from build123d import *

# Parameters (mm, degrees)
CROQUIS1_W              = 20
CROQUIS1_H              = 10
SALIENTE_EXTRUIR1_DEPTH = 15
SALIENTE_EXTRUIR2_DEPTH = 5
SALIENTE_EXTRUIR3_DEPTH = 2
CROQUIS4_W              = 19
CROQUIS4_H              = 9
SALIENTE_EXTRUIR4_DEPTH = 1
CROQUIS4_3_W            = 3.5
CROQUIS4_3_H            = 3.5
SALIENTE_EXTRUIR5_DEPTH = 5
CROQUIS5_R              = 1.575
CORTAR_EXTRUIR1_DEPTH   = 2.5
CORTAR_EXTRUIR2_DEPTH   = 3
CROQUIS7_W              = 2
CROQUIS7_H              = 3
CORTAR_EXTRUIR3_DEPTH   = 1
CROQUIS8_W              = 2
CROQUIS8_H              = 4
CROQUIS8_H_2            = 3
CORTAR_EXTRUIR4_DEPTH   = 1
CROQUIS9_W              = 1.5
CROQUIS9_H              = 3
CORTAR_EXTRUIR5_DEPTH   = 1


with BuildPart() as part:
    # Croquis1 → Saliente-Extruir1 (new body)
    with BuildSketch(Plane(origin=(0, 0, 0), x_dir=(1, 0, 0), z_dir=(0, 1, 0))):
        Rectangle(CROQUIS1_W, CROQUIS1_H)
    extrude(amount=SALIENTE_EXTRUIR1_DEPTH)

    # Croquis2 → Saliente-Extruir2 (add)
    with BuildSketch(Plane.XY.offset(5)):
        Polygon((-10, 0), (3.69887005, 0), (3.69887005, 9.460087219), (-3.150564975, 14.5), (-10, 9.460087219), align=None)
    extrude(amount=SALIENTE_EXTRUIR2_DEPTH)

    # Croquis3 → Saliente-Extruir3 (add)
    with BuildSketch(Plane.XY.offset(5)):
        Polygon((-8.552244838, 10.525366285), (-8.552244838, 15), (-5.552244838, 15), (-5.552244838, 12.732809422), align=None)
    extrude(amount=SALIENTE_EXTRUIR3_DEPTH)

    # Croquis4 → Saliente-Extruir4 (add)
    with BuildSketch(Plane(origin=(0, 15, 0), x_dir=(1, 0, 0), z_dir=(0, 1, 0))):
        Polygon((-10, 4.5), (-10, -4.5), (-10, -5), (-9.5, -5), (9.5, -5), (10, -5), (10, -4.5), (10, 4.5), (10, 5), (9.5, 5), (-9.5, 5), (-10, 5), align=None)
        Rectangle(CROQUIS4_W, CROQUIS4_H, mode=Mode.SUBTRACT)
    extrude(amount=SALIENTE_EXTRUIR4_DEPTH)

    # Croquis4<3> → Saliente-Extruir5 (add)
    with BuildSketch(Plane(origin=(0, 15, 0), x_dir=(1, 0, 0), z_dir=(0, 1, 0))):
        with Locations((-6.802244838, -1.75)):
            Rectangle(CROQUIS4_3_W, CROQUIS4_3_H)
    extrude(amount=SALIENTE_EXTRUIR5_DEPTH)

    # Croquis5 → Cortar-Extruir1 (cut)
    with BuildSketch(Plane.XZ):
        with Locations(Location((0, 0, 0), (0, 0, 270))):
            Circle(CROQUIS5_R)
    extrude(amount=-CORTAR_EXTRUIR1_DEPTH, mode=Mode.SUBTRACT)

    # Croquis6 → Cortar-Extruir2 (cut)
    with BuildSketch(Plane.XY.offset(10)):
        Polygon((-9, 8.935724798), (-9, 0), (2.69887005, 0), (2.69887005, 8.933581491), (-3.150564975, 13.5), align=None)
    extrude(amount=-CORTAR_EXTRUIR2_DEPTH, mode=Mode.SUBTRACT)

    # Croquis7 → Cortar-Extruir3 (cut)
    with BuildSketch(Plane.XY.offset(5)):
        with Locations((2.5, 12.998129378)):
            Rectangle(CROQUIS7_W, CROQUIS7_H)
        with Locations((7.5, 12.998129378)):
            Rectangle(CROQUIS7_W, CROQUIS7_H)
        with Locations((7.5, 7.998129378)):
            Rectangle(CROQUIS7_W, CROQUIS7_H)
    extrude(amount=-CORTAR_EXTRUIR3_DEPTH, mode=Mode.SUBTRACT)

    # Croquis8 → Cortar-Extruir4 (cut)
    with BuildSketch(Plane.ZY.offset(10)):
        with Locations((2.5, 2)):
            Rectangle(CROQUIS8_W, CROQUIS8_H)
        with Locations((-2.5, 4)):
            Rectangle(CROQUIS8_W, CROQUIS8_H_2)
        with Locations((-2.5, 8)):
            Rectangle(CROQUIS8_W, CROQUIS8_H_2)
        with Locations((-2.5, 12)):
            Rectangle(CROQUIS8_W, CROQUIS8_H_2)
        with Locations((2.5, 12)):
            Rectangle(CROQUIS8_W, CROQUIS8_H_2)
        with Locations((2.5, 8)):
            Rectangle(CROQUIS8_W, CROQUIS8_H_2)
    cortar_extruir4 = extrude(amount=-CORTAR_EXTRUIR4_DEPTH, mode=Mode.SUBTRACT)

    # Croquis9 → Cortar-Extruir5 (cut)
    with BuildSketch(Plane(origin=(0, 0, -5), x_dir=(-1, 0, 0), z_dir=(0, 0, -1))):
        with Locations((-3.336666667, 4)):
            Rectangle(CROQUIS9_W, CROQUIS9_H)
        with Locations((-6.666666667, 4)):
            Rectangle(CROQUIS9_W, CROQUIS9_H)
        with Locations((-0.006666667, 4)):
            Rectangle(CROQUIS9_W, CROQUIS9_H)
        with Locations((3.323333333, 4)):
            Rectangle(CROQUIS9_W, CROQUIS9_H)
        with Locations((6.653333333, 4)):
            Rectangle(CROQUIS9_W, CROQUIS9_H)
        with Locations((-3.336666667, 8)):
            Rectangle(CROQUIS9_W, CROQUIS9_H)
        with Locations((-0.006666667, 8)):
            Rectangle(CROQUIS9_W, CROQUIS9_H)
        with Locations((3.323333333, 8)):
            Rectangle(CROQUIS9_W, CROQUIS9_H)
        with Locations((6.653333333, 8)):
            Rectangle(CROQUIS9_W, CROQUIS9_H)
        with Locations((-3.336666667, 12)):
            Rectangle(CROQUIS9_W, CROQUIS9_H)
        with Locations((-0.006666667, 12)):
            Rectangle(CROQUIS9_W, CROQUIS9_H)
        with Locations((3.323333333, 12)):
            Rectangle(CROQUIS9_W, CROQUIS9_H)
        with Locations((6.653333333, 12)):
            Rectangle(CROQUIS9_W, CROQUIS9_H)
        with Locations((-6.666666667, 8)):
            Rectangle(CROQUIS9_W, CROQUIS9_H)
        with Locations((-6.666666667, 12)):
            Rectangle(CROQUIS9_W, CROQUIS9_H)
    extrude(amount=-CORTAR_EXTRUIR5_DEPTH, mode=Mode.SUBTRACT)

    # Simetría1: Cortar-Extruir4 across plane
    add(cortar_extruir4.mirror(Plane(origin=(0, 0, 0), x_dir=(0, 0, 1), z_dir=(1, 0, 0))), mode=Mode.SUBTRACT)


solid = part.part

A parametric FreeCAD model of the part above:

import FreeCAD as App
import Part
import Sketcher
from FreeCAD import Vector


def add_polygon(sketch, points):
    """Adds a closed chain of lines whose ends are joined by coincident constraints."""
    first, n = sketch.GeometryCount, len(points)
    for a, b in zip(points, points[1:] + points[:1]):
        sketch.addGeometry(Part.LineSegment(App.Vector(*a, 0), App.Vector(*b, 0)), False)
    for i in range(n):
        sketch.addConstraint(Sketcher.Constraint("Coincident", first + i, 2, first + (i + 1) % n, 1))

doc = App.newDocument("Part")
body = doc.addObject("PartDesign::Body", "Body")

sketch1 = doc.addObject("Sketcher::SketchObject", "Sketch")
body.addObject(sketch1)
sketch1.AttachmentSupport = (doc.XZ_Plane, [""])
sketch1.MapMode = "FlatFace"
add_polygon(sketch1, [(-10, -5), (-10, 5), (10, 5), (10, -5)])
sketch1.addConstraint([
    Sketcher.Constraint("Vertical", 0),
    Sketcher.Constraint("Horizontal", 1),
    Sketcher.Constraint("Vertical", 2),
    Sketcher.Constraint("Horizontal", 3),
    Sketcher.Constraint("Symmetric", 0, 2, 2, 2, -1, 1),
    Sketcher.Constraint("DistanceX", 1, 1, 1, 2, 20.0),
    Sketcher.Constraint("DistanceY", 0, 1, 0, 2, 10.0),
])
pad1 = doc.addObject("PartDesign::Pad", "Pad")
body.addObject(pad1)
pad1.Profile = sketch1
pad1.Length = 15
pad1.Reversed = True

sketch2 = doc.addObject("Sketcher::SketchObject", "Sketch001")
body.addObject(sketch2)
sketch2.AttachmentSupport = (doc.XY_Plane, [""])
sketch2.MapMode = "FlatFace"
sketch2.AttachmentOffset = App.Placement(Vector(0, 0, 5), App.Rotation())
add_polygon(sketch2, [(-10, 0), (4, 0), (4, 9), (-3, 14), (-10, 9)])
sketch2.addConstraint([
    Sketcher.Constraint("Horizontal", 0),
    Sketcher.Constraint("Vertical", 1),
    Sketcher.Constraint("Vertical", 4),
    Sketcher.Constraint("PointOnObject", 0, 2, -1),
    Sketcher.Constraint("Horizontal", 1, 2, 3, 2),
    Sketcher.Constraint("Equal", 2, 3),
    Sketcher.Constraint("DistanceX", 3, 2, -1, 1, 10.0),
    Sketcher.Constraint("DistanceY", -1, 1, 2, 2, 14.5),
    Sketcher.Constraint("DistanceX", 0, 1, 0, 2, 13.69887),
    Sketcher.Constraint("Distance", 2, 8.503851),
])
pad2 = doc.addObject("PartDesign::Pad", "Pad001")
body.addObject(pad2)
pad2.Profile = sketch2
pad2.Length = 5

sketch3 = doc.addObject("Sketcher::SketchObject", "Sketch002")
body.addObject(sketch3)
sketch3.AttachmentSupport = (doc.XY_Plane, [""])
sketch3.MapMode = "FlatFace"
sketch3.AttachmentOffset = App.Placement(Vector(0, 0, 5), App.Rotation())
add_polygon(sketch3, [(-8.6, 15), (-8.6, 10.5), (-5.6, 12.7), (-5.6, 15)])
sketch3.addConstraint([
    Sketcher.Constraint("Vertical", 0),
    Sketcher.Constraint("Vertical", 2),
    Sketcher.Constraint("Horizontal", 3),
    Sketcher.Constraint("DistanceX", 3, 2, 3, 1, 3.0),
    Sketcher.Constraint("DistanceY", -1, 1, 2, 2, 15.0),
    Sketcher.Constraint("DistanceY", 2, 1, 2, 2, 2.267191),
    Sketcher.Constraint("Distance", 1, 3.724621),
    Sketcher.Constraint("DistanceX", 0, 2, -1, 1, 8.552245),
])
pad3 = doc.addObject("PartDesign::Pad", "Pad002")
body.addObject(pad3)
pad3.Profile = sketch3
pad3.Length = 2

sketch4 = doc.addObject("Sketcher::SketchObject", "Sketch003")
body.addObject(sketch4)
sketch4.AttachmentSupport = (doc.XZ_Plane, [""])
sketch4.MapMode = "FlatFace"
sketch4.AttachmentOffset = App.Placement(Vector(0, 0, -15), App.Rotation())
add_polygon(sketch4, [(-10, 5), (10, 5), (10, -5), (-10, -5)])
add_polygon(sketch4, [(10, 4), (-10, 4), (-10, -4), (10, -4)])
sketch4.addConstraint([
    Sketcher.Constraint("Horizontal", 0),
    Sketcher.Constraint("Vertical", 1),
    Sketcher.Constraint("Horizontal", 2),
    Sketcher.Constraint("Vertical", 3),
    Sketcher.Constraint("Horizontal", 4),
    Sketcher.Constraint("Vertical", 5),
    Sketcher.Constraint("Horizontal", 6),
    Sketcher.Constraint("Vertical", 7),
    Sketcher.Constraint("Symmetric", 0, 2, 2, 2, -1, 1),
    Sketcher.Constraint("Symmetric", 4, 2, 6, 2, -1, 1),
    Sketcher.Constraint("DistanceX", 0, 1, 0, 2, 20.0),
    Sketcher.Constraint("DistanceX", 4, 2, 4, 1, 19.0),
    Sketcher.Constraint("DistanceY", 1, 2, 1, 1, 10.0),
    Sketcher.Constraint("DistanceY", 5, 2, 5, 1, 9.0),
])
pad4 = doc.addObject("PartDesign::Pad", "Pad003")
body.addObject(pad4)
pad4.Profile = sketch4
pad4.Length = 1
pad4.Reversed = True

sketch5 = doc.addObject("Sketcher::SketchObject", "Sketch004")
body.addObject(sketch5)
sketch5.AttachmentSupport = (doc.XZ_Plane, [""])
sketch5.MapMode = "FlatFace"
sketch5.AttachmentOffset = App.Placement(Vector(0, 0, -15), App.Rotation())
add_polygon(sketch5, [(-8.6, 0), (-8.6, 3.5), (-5.1, 3.5), (-5.1, 0)])
sketch5.addConstraint([
    Sketcher.Constraint("Vertical", 0),
    Sketcher.Constraint("Horizontal", 1),
    Sketcher.Constraint("Vertical", 2),
    Sketcher.Constraint("Horizontal", 3),
    Sketcher.Constraint("PointOnObject", 2, 2, -1),
    Sketcher.Constraint("Equal", 3, 0),
    Sketcher.Constraint("DistanceX", 1, 1, 1, 2, 3.5),
    Sketcher.Constraint("DistanceX", 0, 2, -1, 1, 8.552245),
])
pad5 = doc.addObject("PartDesign::Pad", "Pad004")
body.addObject(pad5)
pad5.Profile = sketch5
pad5.Length = 5
pad5.Reversed = True

sketch6 = doc.addObject("Sketcher::SketchObject", "Sketch005")
body.addObject(sketch6)
sketch6.AttachmentSupport = (doc.XZ_Plane, [""])
sketch6.MapMode = "FlatFace"
sketch6.addGeometry(Part.Circle(Vector(0, 0, 0), Vector(0, 0, 1), 1.6), False)
sketch6.addConstraint([
    Sketcher.Constraint("Coincident", 0, 3, -1, 1),
    Sketcher.Constraint("Diameter", 0, 3.15),
])
pocket1 = doc.addObject("PartDesign::Pocket", "Pocket")
body.addObject(pocket1)
pocket1.Profile = sketch6
pocket1.Length = 2.5

sketch7 = doc.addObject("Sketcher::SketchObject", "Sketch006")
body.addObject(sketch7)
sketch7.AttachmentSupport = (doc.XY_Plane, [""])
sketch7.MapMode = "FlatFace"
sketch7.AttachmentOffset = App.Placement(Vector(0, 0, 10), App.Rotation())
add_polygon(sketch7, [(-9, 9), (-9, 0), (3, 0), (3, 9), (-3, 14)])
sketch7.addConstraint([
    Sketcher.Constraint("Vertical", 0),
    Sketcher.Constraint("Horizontal", 1),
    Sketcher.Constraint("Vertical", 2),
    Sketcher.Constraint("PointOnObject", 0, 2, -1),
    Sketcher.Constraint("DistanceX", 0, 2, -1, 1, 9.0),
    Sketcher.Constraint("DistanceY", -1, 1, 3, 2, 13.5),
    Sketcher.Constraint("DistanceX", 1, 1, 1, 2, 11.69887),
    Sketcher.Constraint("DistanceY", 2, 1, 2, 2, 8.933581),
    Sketcher.Constraint("DistanceY", 0, 2, 0, 1, 8.935725),
    Sketcher.Constraint("Distance", 3, 7.420786),
])
pocket2 = doc.addObject("PartDesign::Pocket", "Pocket001")
body.addObject(pocket2)
pocket2.Profile = sketch7
pocket2.Length = 3

sketch8 = doc.addObject("Sketcher::SketchObject", "Sketch007")
body.addObject(sketch8)
sketch8.AttachmentSupport = (doc.XY_Plane, [""])
sketch8.MapMode = "FlatFace"
sketch8.AttachmentOffset = App.Placement(Vector(0, 0, 5), App.Rotation())
add_polygon(sketch8, [(1.5, 14.5), (1.5, 11.5), (3.5, 11.5), (3.5, 14.5)])
add_polygon(sketch8, [(6.5, 14.5), (6.5, 11.5), (8.5, 11.5), (8.5, 14.5)])
add_polygon(sketch8, [(6.5, 9.5), (6.5, 6.5), (8.5, 6.5), (8.5, 9.5)])
sketch8.addConstraint([
    Sketcher.Constraint("Vertical", 0),
    Sketcher.Constraint("Horizontal", 1),
    Sketcher.Constraint("Vertical", 2),
    Sketcher.Constraint("Horizontal", 3),
    Sketcher.Constraint("Vertical", 4),
    Sketcher.Constraint("Horizontal", 5),
    Sketcher.Constraint("Vertical", 6),
    Sketcher.Constraint("Horizontal", 7),
    Sketcher.Constraint("Vertical", 8),
    Sketcher.Constraint("Horizontal", 9),
    Sketcher.Constraint("Vertical", 10),
    Sketcher.Constraint("Horizontal", 11),
    Sketcher.Constraint("Horizontal", 1, 2, 4, 2),
    Sketcher.Constraint("Horizontal", 3, 2, 6, 2),
    Sketcher.Constraint("Vertical", 7, 2, 8, 2),
    Sketcher.Constraint("Vertical", 6, 2, 9, 2),
    Sketcher.Constraint("Equal", 3, 5),
    Sketcher.Constraint("Equal", 6, 8),
    Sketcher.Constraint("DistanceX", 1, 1, 1, 2, 2.0),
    Sketcher.Constraint("DistanceY", 0, 2, 0, 1, 3.0),
    Sketcher.Constraint("DistanceX", 1, 2, 4, 2, 3.0),
    Sketcher.Constraint("DistanceY", 8, 2, 4, 2, 5.0),
    Sketcher.Constraint("DistanceX", -1, 1, 0, 2, 1.5),
    Sketcher.Constraint("DistanceY", -1, 1, 0, 2, 11.498129),
])
pocket3 = doc.addObject("PartDesign::Pocket", "Pocket002")
body.addObject(pocket3)
pocket3.Profile = sketch8
pocket3.Length = 1

sketch9 = doc.addObject("Sketcher::SketchObject", "Sketch008")
body.addObject(sketch9)
sketch9.AttachmentSupport = (doc.YZ_Plane, [""])
sketch9.MapMode = "FlatFace"
sketch9.AttachmentOffset = App.Placement(Vector(0, 0, -10), App.Rotation())
add_polygon(sketch9, [(4, 1.5), (0, 1.5), (0, 3.5), (4, 3.5)])
add_polygon(sketch9, [(5.5, -3.5), (2.5, -3.5), (2.5, -1.5), (5.5, -1.5)])
add_polygon(sketch9, [(9.5, -3.5), (6.5, -3.5), (6.5, -1.5), (9.5, -1.5)])
add_polygon(sketch9, [(13.5, -3.5), (10.5, -3.5), (10.5, -1.5), (13.5, -1.5)])
add_polygon(sketch9, [(13.5, 1.5), (10.5, 1.5), (10.5, 3.5), (13.5, 3.5)])
add_polygon(sketch9, [(9.5, 1.5), (6.5, 1.5), (6.5, 3.5), (9.5, 3.5)])
sketch9.addConstraint([
    Sketcher.Constraint("Horizontal", 0),
    Sketcher.Constraint("Vertical", 1),
    Sketcher.Constraint("Horizontal", 2),
    Sketcher.Constraint("Vertical", 3),
    Sketcher.Constraint("Horizontal", 4),
    Sketcher.Constraint("Vertical", 5),
    Sketcher.Constraint("Horizontal", 6),
    Sketcher.Constraint("Vertical", 7),
    Sketcher.Constraint("Horizontal", 8),
    Sketcher.Constraint("Vertical", 9),
    Sketcher.Constraint("Horizontal", 10),
    Sketcher.Constraint("Vertical", 11),
    Sketcher.Constraint("Horizontal", 12),
    Sketcher.Constraint("Vertical", 13),
    Sketcher.Constraint("Horizontal", 14),
    Sketcher.Constraint("Vertical", 15),
    Sketcher.Constraint("Horizontal", 16),
    Sketcher.Constraint("Vertical", 17),
    Sketcher.Constraint("Horizontal", 18),
    Sketcher.Constraint("Vertical", 19),
    Sketcher.Constraint("Horizontal", 20),
    Sketcher.Constraint("Vertical", 21),
    Sketcher.Constraint("Horizontal", 22),
    Sketcher.Constraint("Vertical", 23),
    Sketcher.Constraint("Symmetric", 13, 2, 16, 2, -1),
    Sketcher.Constraint("Symmetric", 15, 2, 18, 2, -1),
    Sketcher.Constraint("Symmetric", 9, 2, 20, 2, -1),
    Sketcher.Constraint("Symmetric", 11, 2, 22, 2, -1),
    Sketcher.Constraint("PointOnObject", 0, 2, -2),
    Sketcher.Constraint("Horizontal", 7, 2, 8, 2),
    Sketcher.Constraint("Horizontal", 6, 2, 9, 2),
    Sketcher.Constraint("Horizontal", 11, 2, 12, 2),
    Sketcher.Constraint("Horizontal", 10, 2, 13, 2),
    Sketcher.Constraint("Horizontal", 3, 2, 16, 2),
    Sketcher.Constraint("Horizontal", 2, 2, 17, 2),
    Sketcher.Constraint("Equal", 6, 8),
    Sketcher.Constraint("Equal", 10, 12),
    Sketcher.Constraint("DistanceX", 0, 2, 0, 1, 4.0),
    Sketcher.Constraint("DistanceX", 4, 2, 4, 1, 3.0),
    Sketcher.Constraint("DistanceY", 1, 1, 1, 2, 2.0),
    Sketcher.Constraint("DistanceY", 4, 2, 3, 2, 5.0),
    Sketcher.Constraint("DistanceX", 7, 2, 8, 2, 1.0),
    Sketcher.Constraint("DistanceX", 11, 2, 12, 2, 1.0),
    Sketcher.Constraint("DistanceX", -1, 1, 4, 2, 2.5),
])
pocket4 = doc.addObject("PartDesign::Pocket", "Pocket003")
body.addObject(pocket4)
pocket4.Profile = sketch9
pocket4.Length = 1
pocket4.Reversed = True

sketch10 = doc.addObject("Sketcher::SketchObject", "Sketch009")
body.addObject(sketch10)
sketch10.AttachmentSupport = (doc.XY_Plane, [""])
sketch10.MapMode = "FlatFace"
sketch10.AttachmentOffset = App.Placement(Vector(0, 0, -5), App.Rotation())
add_polygon(sketch10, [(4.1, 5.5), (4.1, 2.5), (2.6, 2.5), (2.6, 5.5)])
add_polygon(sketch10, [(7.4, 5.5), (7.4, 2.5), (5.9, 2.5), (5.9, 5.5)])
add_polygon(sketch10, [(0.8, 5.5), (0.8, 2.5), (-0.7, 2.5), (-0.7, 5.5)])
add_polygon(sketch10, [(-2.6, 5.5), (-2.6, 2.5), (-4.1, 2.5), (-4.1, 5.5)])
add_polygon(sketch10, [(-5.9, 5.5), (-5.9, 2.5), (-7.4, 2.5), (-7.4, 5.5)])
add_polygon(sketch10, [(4.1, 9.5), (4.1, 6.5), (2.6, 6.5), (2.6, 9.5)])
add_polygon(sketch10, [(0.8, 9.5), (0.8, 6.5), (-0.7, 6.5), (-0.7, 9.5)])
add_polygon(sketch10, [(-2.6, 9.5), (-2.6, 6.5), (-4.1, 6.5), (-4.1, 9.5)])
add_polygon(sketch10, [(-5.9, 9.5), (-5.9, 6.5), (-7.4, 6.5), (-7.4, 9.5)])
add_polygon(sketch10, [(4.1, 13.5), (4.1, 10.5), (2.6, 10.5), (2.6, 13.5)])
add_polygon(sketch10, [(0.8, 13.5), (0.8, 10.5), (-0.7, 10.5), (-0.7, 13.5)])
add_polygon(sketch10, [(-2.6, 13.5), (-2.6, 10.5), (-4.1, 10.5), (-4.1, 13.5)])
add_polygon(sketch10, [(-5.9, 13.5), (-5.9, 10.5), (-7.4, 10.5), (-7.4, 13.5)])
add_polygon(sketch10, [(7.4, 9.5), (7.4, 6.5), (5.9, 6.5), (5.9, 9.5)])
add_polygon(sketch10, [(7.4, 13.5), (7.4, 10.5), (5.9, 10.5), (5.9, 13.5)])
sketch10.addConstraint([
    Sketcher.Constraint("Vertical", 0),
    Sketcher.Constraint("Horizontal", 1),
    Sketcher.Constraint("Vertical", 2),
    Sketcher.Constraint("Horizontal", 3),
    Sketcher.Constraint("Vertical", 4),
    Sketcher.Constraint("Horizontal", 5),
    Sketcher.Constraint("Vertical", 6),
    Sketcher.Constraint("Horizontal", 7),
    Sketcher.Constraint("Vertical", 8),
    Sketcher.Constraint("Horizontal", 9),
    Sketcher.Constraint("Vertical", 10),
    Sketcher.Constraint("Horizontal", 11),
    Sketcher.Constraint("Vertical", 12),
    Sketcher.Constraint("Horizontal", 13),
    Sketcher.Constraint("Vertical", 14),
    Sketcher.Constraint("Horizontal", 15),
    Sketcher.Constraint("Vertical", 16),
    Sketcher.Constraint("Horizontal", 17),
    Sketcher.Constraint("Vertical", 18),
    Sketcher.Constraint("Horizontal", 19),
    Sketcher.Constraint("Vertical", 20),
    Sketcher.Constraint("Horizontal", 21),
    Sketcher.Constraint("Vertical", 22),
    Sketcher.Constraint("Horizontal", 23),
    Sketcher.Constraint("Vertical", 24),
    Sketcher.Constraint("Horizontal", 25),
    Sketcher.Constraint("Vertical", 26),
    Sketcher.Constraint("Horizontal", 27),
    Sketcher.Constraint("Vertical", 28),
    Sketcher.Constraint("Horizontal", 29),
    Sketcher.Constraint("Vertical", 30),
    Sketcher.Constraint("Horizontal", 31),
    Sketcher.Constraint("Vertical", 32),
    Sketcher.Constraint("Horizontal", 33),
    Sketcher.Constraint("Vertical", 34),
    Sketcher.Constraint("Horizontal", 35),
    Sketcher.Constraint("Vertical", 36),
    Sketcher.Constraint("Horizontal", 37),
    Sketcher.Constraint("Vertical", 38),
    Sketcher.Constraint("Horizontal", 39),
    Sketcher.Constraint("Vertical", 40),
    Sketcher.Constraint("Horizontal", 41),
    Sketcher.Constraint("Vertical", 42),
    Sketcher.Constraint("Horizontal", 43),
    Sketcher.Constraint("Vertical", 44),
    Sketcher.Constraint("Horizontal", 45),
    Sketcher.Constraint("Vertical", 46),
    Sketcher.Constraint("Horizontal", 47),
    Sketcher.Constraint("Vertical", 48),
    Sketcher.Constraint("Horizontal", 49),
    Sketcher.Constraint("Vertical", 50),
    Sketcher.Constraint("Horizontal", 51),
    Sketcher.Constraint("Vertical", 52),
    Sketcher.Constraint("Horizontal", 53),
    Sketcher.Constraint("Vertical", 54),
    Sketcher.Constraint("Horizontal", 55),
    Sketcher.Constraint("Vertical", 56),
    Sketcher.Constraint("Horizontal", 57),
    Sketcher.Constraint("Vertical", 58),
    Sketcher.Constraint("Horizontal", 59),
    Sketcher.Constraint("Horizontal", 1, 2, 4, 2),
    Sketcher.Constraint("Horizontal", 3, 2, 6, 2),
    Sketcher.Constraint("Horizontal", 5, 2, 8, 2),
    Sketcher.Constraint("Horizontal", 7, 2, 10, 2),
    Sketcher.Constraint("Horizontal", 9, 2, 12, 2),
    Sketcher.Constraint("Horizontal", 11, 2, 14, 2),
    Sketcher.Constraint("Horizontal", 13, 2, 16, 2),
    Sketcher.Constraint("Horizontal", 15, 2, 18, 2),
    Sketcher.Constraint("Horizontal", 21, 2, 24, 2),
    Sketcher.Constraint("Horizontal", 23, 2, 26, 2),
    Sketcher.Constraint("Horizontal", 25, 2, 28, 2),
    Sketcher.Constraint("Horizontal", 27, 2, 30, 2),
    Sketcher.Constraint("Horizontal", 29, 2, 32, 2),
    Sketcher.Constraint("Horizontal", 31, 2, 34, 2),
    Sketcher.Constraint("Horizontal", 37, 2, 40, 2),
    Sketcher.Constraint("Horizontal", 39, 2, 42, 2),
    Sketcher.Constraint("Horizontal", 41, 2, 44, 2),
    Sketcher.Constraint("Horizontal", 43, 2, 46, 2),
    Sketcher.Constraint("Horizontal", 45, 2, 48, 2),
    Sketcher.Constraint("Horizontal", 47, 2, 50, 2),
    Sketcher.Constraint("Horizontal", 33, 2, 52, 2),
    Sketcher.Constraint("Horizontal", 35, 2, 54, 2),
    Sketcher.Constraint("Horizontal", 49, 2, 56, 2),
    Sketcher.Constraint("Horizontal", 51, 2, 58, 2),
    Sketcher.Constraint("Vertical", 3, 2, 20, 2),
    Sketcher.Constraint("Vertical", 2, 2, 21, 2),
    Sketcher.Constraint("Vertical", 11, 2, 24, 2),
    Sketcher.Constraint("Vertical", 10, 2, 25, 2),
    Sketcher.Constraint("Vertical", 15, 2, 28, 2),
    Sketcher.Constraint("Vertical", 14, 2, 29, 2),
    Sketcher.Constraint("Vertical", 19, 2, 32, 2),
    Sketcher.Constraint("Vertical", 18, 2, 33, 2),
    Sketcher.Constraint("Vertical", 23, 2, 36, 2),
    Sketcher.Constraint("Vertical", 22, 2, 37, 2),
    Sketcher.Constraint("Vertical", 27, 2, 40, 2),
    Sketcher.Constraint("Vertical", 26, 2, 41, 2),
    Sketcher.Constraint("Vertical", 31, 2, 44, 2),
    Sketcher.Constraint("Vertical", 30, 2, 45, 2),
    Sketcher.Constraint("Vertical", 35, 2, 48, 2),
    Sketcher.Constraint("Vertical", 34, 2, 49, 2),
    Sketcher.Constraint("Vertical", 7, 2, 52, 2),
    Sketcher.Constraint("Vertical", 6, 2, 53, 2),
    Sketcher.Constraint("Vertical", 55, 2, 56, 2),
    Sketcher.Constraint("Vertical", 54, 2, 57, 2),
    Sketcher.Constraint("Equal", 3, 5),
    Sketcher.Constraint("Equal", 7, 9),
    Sketcher.Constraint("Equal", 11, 13),
    Sketcher.Constraint("Equal", 15, 17),
    Sketcher.Constraint("Equal", 18, 20),
    Sketcher.Constraint("Equal", 34, 36),
    Sketcher.Constraint("DistanceY", 0, 2, 0, 1, 3.0),
    Sketcher.Constraint("DistanceX", 1, 2, 1, 1, 1.5),
    Sketcher.Constraint("DistanceY", 3, 2, 20, 2, 1.0),
    Sketcher.Constraint("DistanceY", 23, 2, 36, 2, 1.0),
    Sketcher.Constraint("DistanceY", -1, 1, 0, 2, 2.5),
    Sketcher.Constraint("DistanceX", 0, 2, 4, 2, 3.33),
    Sketcher.Constraint("DistanceX", 8, 2, 1, 2, 1.83),
    Sketcher.Constraint("DistanceX", 12, 2, 9, 2, 1.83),
    Sketcher.Constraint("DistanceX", 16, 2, 13, 2, 1.83),
    Sketcher.Constraint("DistanceX", -1, 1, 0, 2, 4.086667),
])
pocket5 = doc.addObject("PartDesign::Pocket", "Pocket004")
body.addObject(pocket5)
pocket5.Profile = sketch10
pocket5.Length = 1
pocket5.Reversed = True
doc.recompute()

mirrored = doc.addObject("PartDesign::Mirrored", "Mirrored")
body.addObject(mirrored)
mirrored.Originals = [pocket4]
mirrored.MirrorPlane = (doc.YZ_Plane, [""])
body.Tip = mirrored

doc.recompute()
